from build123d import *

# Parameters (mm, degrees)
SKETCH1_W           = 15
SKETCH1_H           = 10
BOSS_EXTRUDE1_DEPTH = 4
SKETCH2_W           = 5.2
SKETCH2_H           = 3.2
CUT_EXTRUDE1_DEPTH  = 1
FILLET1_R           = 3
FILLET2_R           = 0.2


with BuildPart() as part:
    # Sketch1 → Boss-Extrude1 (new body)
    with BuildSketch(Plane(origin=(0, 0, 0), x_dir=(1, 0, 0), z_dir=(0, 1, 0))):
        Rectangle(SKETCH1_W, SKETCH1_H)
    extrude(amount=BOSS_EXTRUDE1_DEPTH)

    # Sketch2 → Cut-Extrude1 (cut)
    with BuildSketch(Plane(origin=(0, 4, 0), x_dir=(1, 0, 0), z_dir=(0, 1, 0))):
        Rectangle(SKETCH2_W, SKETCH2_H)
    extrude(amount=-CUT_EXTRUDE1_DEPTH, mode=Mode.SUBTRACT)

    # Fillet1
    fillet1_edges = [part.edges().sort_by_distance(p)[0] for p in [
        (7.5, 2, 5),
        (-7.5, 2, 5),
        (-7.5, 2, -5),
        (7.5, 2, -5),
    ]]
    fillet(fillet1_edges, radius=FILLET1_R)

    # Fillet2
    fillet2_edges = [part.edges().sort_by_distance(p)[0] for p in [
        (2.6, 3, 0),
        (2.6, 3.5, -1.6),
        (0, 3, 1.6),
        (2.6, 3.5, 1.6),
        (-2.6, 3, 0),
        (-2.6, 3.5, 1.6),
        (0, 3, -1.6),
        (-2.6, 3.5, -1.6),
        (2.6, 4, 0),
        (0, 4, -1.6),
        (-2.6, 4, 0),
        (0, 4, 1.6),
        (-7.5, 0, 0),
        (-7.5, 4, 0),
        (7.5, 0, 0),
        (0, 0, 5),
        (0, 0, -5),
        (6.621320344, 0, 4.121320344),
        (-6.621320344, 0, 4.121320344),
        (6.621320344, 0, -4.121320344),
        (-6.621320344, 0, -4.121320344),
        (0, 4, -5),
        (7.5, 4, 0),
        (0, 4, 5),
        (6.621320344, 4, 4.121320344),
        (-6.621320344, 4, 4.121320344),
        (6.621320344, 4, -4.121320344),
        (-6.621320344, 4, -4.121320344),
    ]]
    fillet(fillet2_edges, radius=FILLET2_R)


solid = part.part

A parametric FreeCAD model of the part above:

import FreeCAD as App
import Part
import Sketcher

V = App.Vector
Q = App.Units.Quantity


def edges_at(feature, points):
    """Names of the edges that pass closest to the given points."""
    edges = feature.Shape.Edges
    near = lambda p: min(range(len(edges)), key=lambda i: edges[i].distToShape(Part.Vertex(*p))[0])
    return sorted({f"Edge{near(p) + 1}" for p in points})


def add_polygon(sketch, points):
    """Adds a closed chain of lines whose ends are joined by coincident constraints."""
    first, n = sketch.GeometryCount, len(points)
    for a, b in zip(points, points[1:] + points[:1]):
        sketch.addGeometry(Part.LineSegment(App.Vector(*a, 0), App.Vector(*b, 0)), False)
    for i in range(n):
        sketch.addConstraint(Sketcher.Constraint("Coincident", first + i, 2, first + (i + 1) % n, 1))

doc = App.newDocument("Part")
body = doc.addObject("PartDesign::Body", "Body")

# Sketch on XZ plane
sketch1 = body.newObject("Sketcher::SketchObject", "Sketch")
sketch1.AttachmentSupport = (doc.getObject("XZ_Plane"), [""])
sketch1.MapMode = "FlatFace"
add_polygon(sketch1, [(-8, -5), (-8, 5), (8, 5), (8, -5)])  # lines 0-3
sketch1.addConstraint(Sketcher.Constraint("Vertical", 0))
sketch1.addConstraint(Sketcher.Constraint("Horizontal", 1))
sketch1.addConstraint(Sketcher.Constraint("Vertical", 2))
sketch1.addConstraint(Sketcher.Constraint("Horizontal", 3))
sketch1.addConstraint(Sketcher.Constraint("Symmetric", 0, 2, 2, 2, -1, 1))
sketch1.addConstraint(Sketcher.Constraint("DistanceX", 1, 1, 1, 2, Q("15 mm")))
sketch1.addConstraint(Sketcher.Constraint("DistanceY", 0, 1, 0, 2, Q("10 mm")))
pad1 = body.newObject("PartDesign::Pad", "Pad")
pad1.Profile = sketch1
pad1.Length = 4
pad1.Reversed = True

# Sketch on XZ plane
sketch2 = body.newObject("Sketcher::SketchObject", "Sketch001")
sketch2.AttachmentSupport = (doc.getObject("XZ_Plane"), [""])
sketch2.MapMode = "FlatFace"
sketch2.AttachmentOffset = App.Placement(V(0, 0, -4), App.Rotation())
add_polygon(sketch2, [(-2.6, -1.6), (-2.6, 1.6), (2.6, 1.6), (2.6, -1.6)])  # lines 0-3
sketch2.addConstraint(Sketcher.Constraint("Vertical", 0))
sketch2.addConstraint(Sketcher.Constraint("Horizontal", 1))
sketch2.addConstraint(Sketcher.Constraint("Vertical", 2))
sketch2.addConstraint(Sketcher.Constraint("Horizontal", 3))
sketch2.addConstraint(Sketcher.Constraint("Symmetric", 0, 2, 2, 2, -1, 1))
sketch2.addConstraint(Sketcher.Constraint("DistanceX", 1, 1, 1, 2, Q("5.2 mm")))
sketch2.addConstraint(Sketcher.Constraint("DistanceY", 0, 1, 0, 2, Q("3.2 mm")))
pocket1 = body.newObject("PartDesign::Pocket", "Pocket")
pocket1.Profile = sketch2
pocket1.Length = 1
pocket1.Reversed = True
doc.recompute()

fillet = body.newObject("PartDesign::Fillet", "Fillet")
fillet.Base = (pocket1, edges_at(pocket1, [
    (7.5, 2, 5),
    (-7.5, 2, 5),
    (-7.5, 2, -5),
    (7.5, 2, -5),
]))
fillet.Radius = 3
doc.recompute()

fillet2 = body.newObject("PartDesign::Fillet", "Fillet001")
fillet2.Base = (fillet, ["Edge1"])
fillet2.UseAllEdges = True
fillet2.Radius = 0.2

doc.recompute()
